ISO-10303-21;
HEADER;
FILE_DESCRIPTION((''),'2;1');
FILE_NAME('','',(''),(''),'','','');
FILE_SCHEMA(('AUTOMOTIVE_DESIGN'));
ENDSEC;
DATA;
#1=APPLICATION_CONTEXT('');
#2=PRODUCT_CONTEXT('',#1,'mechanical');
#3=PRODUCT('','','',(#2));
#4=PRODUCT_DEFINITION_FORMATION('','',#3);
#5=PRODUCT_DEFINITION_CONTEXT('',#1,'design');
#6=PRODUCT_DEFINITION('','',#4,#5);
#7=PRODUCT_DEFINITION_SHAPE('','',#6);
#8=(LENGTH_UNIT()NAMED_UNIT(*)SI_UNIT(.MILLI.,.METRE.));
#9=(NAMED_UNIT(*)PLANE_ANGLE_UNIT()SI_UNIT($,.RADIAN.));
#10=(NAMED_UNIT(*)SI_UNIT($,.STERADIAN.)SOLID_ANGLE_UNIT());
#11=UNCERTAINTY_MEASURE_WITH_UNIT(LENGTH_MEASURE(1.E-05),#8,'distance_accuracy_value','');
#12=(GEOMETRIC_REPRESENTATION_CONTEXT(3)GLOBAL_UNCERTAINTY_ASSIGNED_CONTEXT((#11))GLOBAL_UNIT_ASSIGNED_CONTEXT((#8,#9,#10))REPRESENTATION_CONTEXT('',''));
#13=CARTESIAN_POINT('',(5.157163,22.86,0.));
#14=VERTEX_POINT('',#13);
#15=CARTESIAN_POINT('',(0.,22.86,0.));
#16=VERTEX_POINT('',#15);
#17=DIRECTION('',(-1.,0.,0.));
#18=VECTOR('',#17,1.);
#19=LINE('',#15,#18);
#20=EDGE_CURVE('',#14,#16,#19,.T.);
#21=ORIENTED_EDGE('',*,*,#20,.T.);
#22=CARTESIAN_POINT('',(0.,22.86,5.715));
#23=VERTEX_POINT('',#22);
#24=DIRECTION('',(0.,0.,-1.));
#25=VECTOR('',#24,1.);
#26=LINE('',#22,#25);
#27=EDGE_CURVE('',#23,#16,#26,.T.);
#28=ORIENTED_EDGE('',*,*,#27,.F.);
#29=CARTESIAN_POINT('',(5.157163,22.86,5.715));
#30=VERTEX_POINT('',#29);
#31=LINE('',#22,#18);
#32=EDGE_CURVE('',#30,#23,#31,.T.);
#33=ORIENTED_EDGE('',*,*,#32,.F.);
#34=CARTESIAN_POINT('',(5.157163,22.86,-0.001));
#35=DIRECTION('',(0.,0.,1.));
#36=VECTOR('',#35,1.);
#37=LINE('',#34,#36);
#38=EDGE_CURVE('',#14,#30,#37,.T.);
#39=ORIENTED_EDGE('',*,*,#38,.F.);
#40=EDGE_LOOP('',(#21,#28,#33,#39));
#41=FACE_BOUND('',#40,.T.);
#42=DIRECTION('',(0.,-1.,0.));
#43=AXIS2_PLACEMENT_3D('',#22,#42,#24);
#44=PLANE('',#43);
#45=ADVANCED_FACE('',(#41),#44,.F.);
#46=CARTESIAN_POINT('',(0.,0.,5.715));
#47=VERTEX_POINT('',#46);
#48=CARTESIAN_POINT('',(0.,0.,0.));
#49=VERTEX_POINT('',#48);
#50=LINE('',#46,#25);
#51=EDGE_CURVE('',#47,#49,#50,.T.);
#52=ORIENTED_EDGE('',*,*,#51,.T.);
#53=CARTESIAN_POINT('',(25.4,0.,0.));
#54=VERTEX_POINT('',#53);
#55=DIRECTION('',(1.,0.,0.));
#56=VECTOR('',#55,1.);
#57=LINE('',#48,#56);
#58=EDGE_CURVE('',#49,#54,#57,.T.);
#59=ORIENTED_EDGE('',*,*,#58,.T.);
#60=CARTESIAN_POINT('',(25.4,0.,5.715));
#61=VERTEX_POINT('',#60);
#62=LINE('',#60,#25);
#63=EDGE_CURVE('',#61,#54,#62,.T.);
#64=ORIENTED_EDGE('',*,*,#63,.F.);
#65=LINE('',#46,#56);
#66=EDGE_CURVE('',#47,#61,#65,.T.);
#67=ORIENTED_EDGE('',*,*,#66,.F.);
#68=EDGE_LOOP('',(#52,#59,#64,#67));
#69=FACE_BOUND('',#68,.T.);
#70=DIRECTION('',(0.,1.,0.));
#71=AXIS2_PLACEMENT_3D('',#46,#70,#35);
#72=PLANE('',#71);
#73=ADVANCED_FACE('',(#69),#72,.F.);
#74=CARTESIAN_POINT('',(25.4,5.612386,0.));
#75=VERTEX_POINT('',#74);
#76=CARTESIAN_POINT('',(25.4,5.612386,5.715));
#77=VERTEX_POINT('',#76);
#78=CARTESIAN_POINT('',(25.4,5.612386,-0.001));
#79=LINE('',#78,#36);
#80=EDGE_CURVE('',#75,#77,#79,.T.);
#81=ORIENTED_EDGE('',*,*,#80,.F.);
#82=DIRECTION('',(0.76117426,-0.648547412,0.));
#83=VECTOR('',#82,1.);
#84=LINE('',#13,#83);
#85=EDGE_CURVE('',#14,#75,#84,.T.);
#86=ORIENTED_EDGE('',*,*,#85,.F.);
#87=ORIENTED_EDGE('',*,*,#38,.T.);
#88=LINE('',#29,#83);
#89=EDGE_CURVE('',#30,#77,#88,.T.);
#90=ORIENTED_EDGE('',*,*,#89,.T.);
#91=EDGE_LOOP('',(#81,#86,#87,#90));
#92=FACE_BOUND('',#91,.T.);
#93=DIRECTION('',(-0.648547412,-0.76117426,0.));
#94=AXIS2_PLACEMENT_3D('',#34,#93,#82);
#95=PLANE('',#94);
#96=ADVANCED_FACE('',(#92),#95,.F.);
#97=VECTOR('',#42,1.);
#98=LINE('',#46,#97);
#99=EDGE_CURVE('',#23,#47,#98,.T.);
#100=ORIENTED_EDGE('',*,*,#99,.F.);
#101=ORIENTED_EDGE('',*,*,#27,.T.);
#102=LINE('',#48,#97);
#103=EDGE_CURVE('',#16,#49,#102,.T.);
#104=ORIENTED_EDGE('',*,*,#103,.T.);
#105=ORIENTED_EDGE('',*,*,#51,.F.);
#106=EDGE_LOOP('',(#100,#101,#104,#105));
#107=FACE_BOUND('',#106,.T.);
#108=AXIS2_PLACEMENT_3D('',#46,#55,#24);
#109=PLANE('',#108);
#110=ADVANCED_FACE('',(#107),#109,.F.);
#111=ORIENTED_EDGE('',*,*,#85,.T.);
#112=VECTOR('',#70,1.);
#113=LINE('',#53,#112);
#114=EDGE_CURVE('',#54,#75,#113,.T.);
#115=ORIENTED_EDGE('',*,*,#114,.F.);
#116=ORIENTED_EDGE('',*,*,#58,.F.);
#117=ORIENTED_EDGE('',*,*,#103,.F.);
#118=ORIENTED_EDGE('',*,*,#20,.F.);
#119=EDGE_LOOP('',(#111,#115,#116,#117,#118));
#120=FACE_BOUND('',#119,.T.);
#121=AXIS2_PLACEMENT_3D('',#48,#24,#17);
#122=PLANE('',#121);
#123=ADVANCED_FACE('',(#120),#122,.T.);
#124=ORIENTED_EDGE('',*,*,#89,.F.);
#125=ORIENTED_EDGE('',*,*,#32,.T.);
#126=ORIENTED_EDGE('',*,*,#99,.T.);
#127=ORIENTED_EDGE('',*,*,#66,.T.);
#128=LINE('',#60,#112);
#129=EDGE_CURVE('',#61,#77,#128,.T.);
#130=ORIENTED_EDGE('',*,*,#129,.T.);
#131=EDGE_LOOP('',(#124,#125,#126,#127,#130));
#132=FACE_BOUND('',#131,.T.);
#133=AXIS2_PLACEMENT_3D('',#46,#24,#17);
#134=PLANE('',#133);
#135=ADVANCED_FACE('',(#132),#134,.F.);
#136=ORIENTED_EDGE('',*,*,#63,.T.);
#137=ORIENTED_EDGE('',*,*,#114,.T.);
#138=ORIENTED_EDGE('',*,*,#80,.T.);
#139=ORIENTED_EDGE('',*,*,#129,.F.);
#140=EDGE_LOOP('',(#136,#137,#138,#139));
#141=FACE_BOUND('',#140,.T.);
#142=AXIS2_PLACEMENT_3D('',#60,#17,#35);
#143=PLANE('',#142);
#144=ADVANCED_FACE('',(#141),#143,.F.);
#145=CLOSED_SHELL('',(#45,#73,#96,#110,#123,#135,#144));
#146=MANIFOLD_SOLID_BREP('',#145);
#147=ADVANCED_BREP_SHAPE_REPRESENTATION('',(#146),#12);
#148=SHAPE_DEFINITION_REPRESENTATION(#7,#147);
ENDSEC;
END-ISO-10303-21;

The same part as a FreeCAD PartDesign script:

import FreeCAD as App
import Part
import Sketcher
Q = App.Units.Quantity

doc = App.newDocument("Part")
params = doc.addObject("Spreadsheet::Sheet", "Params")
for row, (alias, value) in enumerate([
    ("sketch1_width", "1 in"),
    ("sketch1_height", "0.9 in"),
    ("pad1_length", "0.225 in"),
], start=1):
    params.set(f"A{row}", alias)
    params.set(f"B{row}", "=" + value)
    params.setAlias(f"B{row}", alias)

body = doc.addObject("PartDesign::Body", "Body")

# Sketch on XY plane
sketch1 = body.newObject("Sketcher::SketchObject", "Sketch")
sketch1.AttachmentSupport = (doc.getObject("XY_Plane"), [""])
sketch1.MapMode = "FlatFace"
sketch1.addGeometry([
    Part.LineSegment(App.Vector(0, 23, 0), App.Vector(0, 0, 0)),
    Part.LineSegment(App.Vector(0, 0, 0), App.Vector(25, 0, 0)),
    Part.LineSegment(App.Vector(25, 0, 0), App.Vector(25, 23, 0)),
    Part.LineSegment(App.Vector(25, 23, 0), App.Vector(0, 23, 0)),
], False)
sketch1.addConstraint([
    Sketcher.Constraint("Coincident", 0, 2, 1, 1),
    Sketcher.Constraint("Coincident", 1, 2, 2, 1),
    Sketcher.Constraint("Coincident", 2, 2, 3, 1),
    Sketcher.Constraint("Coincident", 3, 2, 0, 1),
    Sketcher.Constraint("Vertical", 0),
    Sketcher.Constraint("Horizontal", 1),
    Sketcher.Constraint("Vertical", 2),
    Sketcher.Constraint("Horizontal", 3),
    Sketcher.Constraint("Coincident", 0, 2, -1, 1),
    Sketcher.Constraint("DistanceX", 1, 1, 1, 2, Q("1 in")),
    Sketcher.Constraint("DistanceY", 0, 2, 0, 1, Q("0.9 in")),
])
sketch1.setExpression("Constraints[9]", "Params.sketch1_width")
sketch1.setExpression("Constraints[10]", "Params.sketch1_height")
pad1 = body.newObject("PartDesign::Pad", "Pad")
pad1.Profile = sketch1
pad1.setExpression("Length", "Params.pad1_length")

# Sketch on XY plane
sketch2 = body.newObject("Sketcher::SketchObject", "Sketch001")
sketch2.AttachmentSupport = (doc.getObject("XY_Plane"), [""])
sketch2.MapMode = "FlatFace"
sketch2.AttachmentOffset = App.Placement(App.Vector(0, 0, 0.225 * 25.4), App.Rotation())
sketch2.addGeometry([
    Part.LineSegment(App.Vector(5, 23, 0), App.Vector(25, 6, 0)),
    Part.LineSegment(App.Vector(25, 6, 0), App.Vector(25, 23, 0)),
    Part.LineSegment(App.Vector(25, 23, 0), App.Vector(5, 23, 0)),
], False)
sketch2.addConstraint([
    Sketcher.Constraint("Coincident", 0, 2, 1, 1),
    Sketcher.Constraint("Coincident", 1, 2, 2, 1),
    Sketcher.Constraint("Coincident", 2, 2, 0, 1),
    Sketcher.Constraint("Vertical", 1),
    Sketcher.Constraint("Horizontal", 2),
    Sketcher.Constraint("DistanceX", -1, 1, 0, 2, Q("1 in")),
    Sketcher.Constraint("DistanceY", -1, 1, 1, 2, Q("0.9 in")),
    Sketcher.Constraint("Distance", 0, Q("26.594222 mm")),
    Sketcher.Constraint("DistanceX", 2, 2, 2, 1, Q("20.242837 mm")),
])
pocket1 = body.newObject("PartDesign::Pocket", "Pocket")
pocket1.Profile = sketch2
pocket1.Type = "UpToFirst"

doc.recompute()
